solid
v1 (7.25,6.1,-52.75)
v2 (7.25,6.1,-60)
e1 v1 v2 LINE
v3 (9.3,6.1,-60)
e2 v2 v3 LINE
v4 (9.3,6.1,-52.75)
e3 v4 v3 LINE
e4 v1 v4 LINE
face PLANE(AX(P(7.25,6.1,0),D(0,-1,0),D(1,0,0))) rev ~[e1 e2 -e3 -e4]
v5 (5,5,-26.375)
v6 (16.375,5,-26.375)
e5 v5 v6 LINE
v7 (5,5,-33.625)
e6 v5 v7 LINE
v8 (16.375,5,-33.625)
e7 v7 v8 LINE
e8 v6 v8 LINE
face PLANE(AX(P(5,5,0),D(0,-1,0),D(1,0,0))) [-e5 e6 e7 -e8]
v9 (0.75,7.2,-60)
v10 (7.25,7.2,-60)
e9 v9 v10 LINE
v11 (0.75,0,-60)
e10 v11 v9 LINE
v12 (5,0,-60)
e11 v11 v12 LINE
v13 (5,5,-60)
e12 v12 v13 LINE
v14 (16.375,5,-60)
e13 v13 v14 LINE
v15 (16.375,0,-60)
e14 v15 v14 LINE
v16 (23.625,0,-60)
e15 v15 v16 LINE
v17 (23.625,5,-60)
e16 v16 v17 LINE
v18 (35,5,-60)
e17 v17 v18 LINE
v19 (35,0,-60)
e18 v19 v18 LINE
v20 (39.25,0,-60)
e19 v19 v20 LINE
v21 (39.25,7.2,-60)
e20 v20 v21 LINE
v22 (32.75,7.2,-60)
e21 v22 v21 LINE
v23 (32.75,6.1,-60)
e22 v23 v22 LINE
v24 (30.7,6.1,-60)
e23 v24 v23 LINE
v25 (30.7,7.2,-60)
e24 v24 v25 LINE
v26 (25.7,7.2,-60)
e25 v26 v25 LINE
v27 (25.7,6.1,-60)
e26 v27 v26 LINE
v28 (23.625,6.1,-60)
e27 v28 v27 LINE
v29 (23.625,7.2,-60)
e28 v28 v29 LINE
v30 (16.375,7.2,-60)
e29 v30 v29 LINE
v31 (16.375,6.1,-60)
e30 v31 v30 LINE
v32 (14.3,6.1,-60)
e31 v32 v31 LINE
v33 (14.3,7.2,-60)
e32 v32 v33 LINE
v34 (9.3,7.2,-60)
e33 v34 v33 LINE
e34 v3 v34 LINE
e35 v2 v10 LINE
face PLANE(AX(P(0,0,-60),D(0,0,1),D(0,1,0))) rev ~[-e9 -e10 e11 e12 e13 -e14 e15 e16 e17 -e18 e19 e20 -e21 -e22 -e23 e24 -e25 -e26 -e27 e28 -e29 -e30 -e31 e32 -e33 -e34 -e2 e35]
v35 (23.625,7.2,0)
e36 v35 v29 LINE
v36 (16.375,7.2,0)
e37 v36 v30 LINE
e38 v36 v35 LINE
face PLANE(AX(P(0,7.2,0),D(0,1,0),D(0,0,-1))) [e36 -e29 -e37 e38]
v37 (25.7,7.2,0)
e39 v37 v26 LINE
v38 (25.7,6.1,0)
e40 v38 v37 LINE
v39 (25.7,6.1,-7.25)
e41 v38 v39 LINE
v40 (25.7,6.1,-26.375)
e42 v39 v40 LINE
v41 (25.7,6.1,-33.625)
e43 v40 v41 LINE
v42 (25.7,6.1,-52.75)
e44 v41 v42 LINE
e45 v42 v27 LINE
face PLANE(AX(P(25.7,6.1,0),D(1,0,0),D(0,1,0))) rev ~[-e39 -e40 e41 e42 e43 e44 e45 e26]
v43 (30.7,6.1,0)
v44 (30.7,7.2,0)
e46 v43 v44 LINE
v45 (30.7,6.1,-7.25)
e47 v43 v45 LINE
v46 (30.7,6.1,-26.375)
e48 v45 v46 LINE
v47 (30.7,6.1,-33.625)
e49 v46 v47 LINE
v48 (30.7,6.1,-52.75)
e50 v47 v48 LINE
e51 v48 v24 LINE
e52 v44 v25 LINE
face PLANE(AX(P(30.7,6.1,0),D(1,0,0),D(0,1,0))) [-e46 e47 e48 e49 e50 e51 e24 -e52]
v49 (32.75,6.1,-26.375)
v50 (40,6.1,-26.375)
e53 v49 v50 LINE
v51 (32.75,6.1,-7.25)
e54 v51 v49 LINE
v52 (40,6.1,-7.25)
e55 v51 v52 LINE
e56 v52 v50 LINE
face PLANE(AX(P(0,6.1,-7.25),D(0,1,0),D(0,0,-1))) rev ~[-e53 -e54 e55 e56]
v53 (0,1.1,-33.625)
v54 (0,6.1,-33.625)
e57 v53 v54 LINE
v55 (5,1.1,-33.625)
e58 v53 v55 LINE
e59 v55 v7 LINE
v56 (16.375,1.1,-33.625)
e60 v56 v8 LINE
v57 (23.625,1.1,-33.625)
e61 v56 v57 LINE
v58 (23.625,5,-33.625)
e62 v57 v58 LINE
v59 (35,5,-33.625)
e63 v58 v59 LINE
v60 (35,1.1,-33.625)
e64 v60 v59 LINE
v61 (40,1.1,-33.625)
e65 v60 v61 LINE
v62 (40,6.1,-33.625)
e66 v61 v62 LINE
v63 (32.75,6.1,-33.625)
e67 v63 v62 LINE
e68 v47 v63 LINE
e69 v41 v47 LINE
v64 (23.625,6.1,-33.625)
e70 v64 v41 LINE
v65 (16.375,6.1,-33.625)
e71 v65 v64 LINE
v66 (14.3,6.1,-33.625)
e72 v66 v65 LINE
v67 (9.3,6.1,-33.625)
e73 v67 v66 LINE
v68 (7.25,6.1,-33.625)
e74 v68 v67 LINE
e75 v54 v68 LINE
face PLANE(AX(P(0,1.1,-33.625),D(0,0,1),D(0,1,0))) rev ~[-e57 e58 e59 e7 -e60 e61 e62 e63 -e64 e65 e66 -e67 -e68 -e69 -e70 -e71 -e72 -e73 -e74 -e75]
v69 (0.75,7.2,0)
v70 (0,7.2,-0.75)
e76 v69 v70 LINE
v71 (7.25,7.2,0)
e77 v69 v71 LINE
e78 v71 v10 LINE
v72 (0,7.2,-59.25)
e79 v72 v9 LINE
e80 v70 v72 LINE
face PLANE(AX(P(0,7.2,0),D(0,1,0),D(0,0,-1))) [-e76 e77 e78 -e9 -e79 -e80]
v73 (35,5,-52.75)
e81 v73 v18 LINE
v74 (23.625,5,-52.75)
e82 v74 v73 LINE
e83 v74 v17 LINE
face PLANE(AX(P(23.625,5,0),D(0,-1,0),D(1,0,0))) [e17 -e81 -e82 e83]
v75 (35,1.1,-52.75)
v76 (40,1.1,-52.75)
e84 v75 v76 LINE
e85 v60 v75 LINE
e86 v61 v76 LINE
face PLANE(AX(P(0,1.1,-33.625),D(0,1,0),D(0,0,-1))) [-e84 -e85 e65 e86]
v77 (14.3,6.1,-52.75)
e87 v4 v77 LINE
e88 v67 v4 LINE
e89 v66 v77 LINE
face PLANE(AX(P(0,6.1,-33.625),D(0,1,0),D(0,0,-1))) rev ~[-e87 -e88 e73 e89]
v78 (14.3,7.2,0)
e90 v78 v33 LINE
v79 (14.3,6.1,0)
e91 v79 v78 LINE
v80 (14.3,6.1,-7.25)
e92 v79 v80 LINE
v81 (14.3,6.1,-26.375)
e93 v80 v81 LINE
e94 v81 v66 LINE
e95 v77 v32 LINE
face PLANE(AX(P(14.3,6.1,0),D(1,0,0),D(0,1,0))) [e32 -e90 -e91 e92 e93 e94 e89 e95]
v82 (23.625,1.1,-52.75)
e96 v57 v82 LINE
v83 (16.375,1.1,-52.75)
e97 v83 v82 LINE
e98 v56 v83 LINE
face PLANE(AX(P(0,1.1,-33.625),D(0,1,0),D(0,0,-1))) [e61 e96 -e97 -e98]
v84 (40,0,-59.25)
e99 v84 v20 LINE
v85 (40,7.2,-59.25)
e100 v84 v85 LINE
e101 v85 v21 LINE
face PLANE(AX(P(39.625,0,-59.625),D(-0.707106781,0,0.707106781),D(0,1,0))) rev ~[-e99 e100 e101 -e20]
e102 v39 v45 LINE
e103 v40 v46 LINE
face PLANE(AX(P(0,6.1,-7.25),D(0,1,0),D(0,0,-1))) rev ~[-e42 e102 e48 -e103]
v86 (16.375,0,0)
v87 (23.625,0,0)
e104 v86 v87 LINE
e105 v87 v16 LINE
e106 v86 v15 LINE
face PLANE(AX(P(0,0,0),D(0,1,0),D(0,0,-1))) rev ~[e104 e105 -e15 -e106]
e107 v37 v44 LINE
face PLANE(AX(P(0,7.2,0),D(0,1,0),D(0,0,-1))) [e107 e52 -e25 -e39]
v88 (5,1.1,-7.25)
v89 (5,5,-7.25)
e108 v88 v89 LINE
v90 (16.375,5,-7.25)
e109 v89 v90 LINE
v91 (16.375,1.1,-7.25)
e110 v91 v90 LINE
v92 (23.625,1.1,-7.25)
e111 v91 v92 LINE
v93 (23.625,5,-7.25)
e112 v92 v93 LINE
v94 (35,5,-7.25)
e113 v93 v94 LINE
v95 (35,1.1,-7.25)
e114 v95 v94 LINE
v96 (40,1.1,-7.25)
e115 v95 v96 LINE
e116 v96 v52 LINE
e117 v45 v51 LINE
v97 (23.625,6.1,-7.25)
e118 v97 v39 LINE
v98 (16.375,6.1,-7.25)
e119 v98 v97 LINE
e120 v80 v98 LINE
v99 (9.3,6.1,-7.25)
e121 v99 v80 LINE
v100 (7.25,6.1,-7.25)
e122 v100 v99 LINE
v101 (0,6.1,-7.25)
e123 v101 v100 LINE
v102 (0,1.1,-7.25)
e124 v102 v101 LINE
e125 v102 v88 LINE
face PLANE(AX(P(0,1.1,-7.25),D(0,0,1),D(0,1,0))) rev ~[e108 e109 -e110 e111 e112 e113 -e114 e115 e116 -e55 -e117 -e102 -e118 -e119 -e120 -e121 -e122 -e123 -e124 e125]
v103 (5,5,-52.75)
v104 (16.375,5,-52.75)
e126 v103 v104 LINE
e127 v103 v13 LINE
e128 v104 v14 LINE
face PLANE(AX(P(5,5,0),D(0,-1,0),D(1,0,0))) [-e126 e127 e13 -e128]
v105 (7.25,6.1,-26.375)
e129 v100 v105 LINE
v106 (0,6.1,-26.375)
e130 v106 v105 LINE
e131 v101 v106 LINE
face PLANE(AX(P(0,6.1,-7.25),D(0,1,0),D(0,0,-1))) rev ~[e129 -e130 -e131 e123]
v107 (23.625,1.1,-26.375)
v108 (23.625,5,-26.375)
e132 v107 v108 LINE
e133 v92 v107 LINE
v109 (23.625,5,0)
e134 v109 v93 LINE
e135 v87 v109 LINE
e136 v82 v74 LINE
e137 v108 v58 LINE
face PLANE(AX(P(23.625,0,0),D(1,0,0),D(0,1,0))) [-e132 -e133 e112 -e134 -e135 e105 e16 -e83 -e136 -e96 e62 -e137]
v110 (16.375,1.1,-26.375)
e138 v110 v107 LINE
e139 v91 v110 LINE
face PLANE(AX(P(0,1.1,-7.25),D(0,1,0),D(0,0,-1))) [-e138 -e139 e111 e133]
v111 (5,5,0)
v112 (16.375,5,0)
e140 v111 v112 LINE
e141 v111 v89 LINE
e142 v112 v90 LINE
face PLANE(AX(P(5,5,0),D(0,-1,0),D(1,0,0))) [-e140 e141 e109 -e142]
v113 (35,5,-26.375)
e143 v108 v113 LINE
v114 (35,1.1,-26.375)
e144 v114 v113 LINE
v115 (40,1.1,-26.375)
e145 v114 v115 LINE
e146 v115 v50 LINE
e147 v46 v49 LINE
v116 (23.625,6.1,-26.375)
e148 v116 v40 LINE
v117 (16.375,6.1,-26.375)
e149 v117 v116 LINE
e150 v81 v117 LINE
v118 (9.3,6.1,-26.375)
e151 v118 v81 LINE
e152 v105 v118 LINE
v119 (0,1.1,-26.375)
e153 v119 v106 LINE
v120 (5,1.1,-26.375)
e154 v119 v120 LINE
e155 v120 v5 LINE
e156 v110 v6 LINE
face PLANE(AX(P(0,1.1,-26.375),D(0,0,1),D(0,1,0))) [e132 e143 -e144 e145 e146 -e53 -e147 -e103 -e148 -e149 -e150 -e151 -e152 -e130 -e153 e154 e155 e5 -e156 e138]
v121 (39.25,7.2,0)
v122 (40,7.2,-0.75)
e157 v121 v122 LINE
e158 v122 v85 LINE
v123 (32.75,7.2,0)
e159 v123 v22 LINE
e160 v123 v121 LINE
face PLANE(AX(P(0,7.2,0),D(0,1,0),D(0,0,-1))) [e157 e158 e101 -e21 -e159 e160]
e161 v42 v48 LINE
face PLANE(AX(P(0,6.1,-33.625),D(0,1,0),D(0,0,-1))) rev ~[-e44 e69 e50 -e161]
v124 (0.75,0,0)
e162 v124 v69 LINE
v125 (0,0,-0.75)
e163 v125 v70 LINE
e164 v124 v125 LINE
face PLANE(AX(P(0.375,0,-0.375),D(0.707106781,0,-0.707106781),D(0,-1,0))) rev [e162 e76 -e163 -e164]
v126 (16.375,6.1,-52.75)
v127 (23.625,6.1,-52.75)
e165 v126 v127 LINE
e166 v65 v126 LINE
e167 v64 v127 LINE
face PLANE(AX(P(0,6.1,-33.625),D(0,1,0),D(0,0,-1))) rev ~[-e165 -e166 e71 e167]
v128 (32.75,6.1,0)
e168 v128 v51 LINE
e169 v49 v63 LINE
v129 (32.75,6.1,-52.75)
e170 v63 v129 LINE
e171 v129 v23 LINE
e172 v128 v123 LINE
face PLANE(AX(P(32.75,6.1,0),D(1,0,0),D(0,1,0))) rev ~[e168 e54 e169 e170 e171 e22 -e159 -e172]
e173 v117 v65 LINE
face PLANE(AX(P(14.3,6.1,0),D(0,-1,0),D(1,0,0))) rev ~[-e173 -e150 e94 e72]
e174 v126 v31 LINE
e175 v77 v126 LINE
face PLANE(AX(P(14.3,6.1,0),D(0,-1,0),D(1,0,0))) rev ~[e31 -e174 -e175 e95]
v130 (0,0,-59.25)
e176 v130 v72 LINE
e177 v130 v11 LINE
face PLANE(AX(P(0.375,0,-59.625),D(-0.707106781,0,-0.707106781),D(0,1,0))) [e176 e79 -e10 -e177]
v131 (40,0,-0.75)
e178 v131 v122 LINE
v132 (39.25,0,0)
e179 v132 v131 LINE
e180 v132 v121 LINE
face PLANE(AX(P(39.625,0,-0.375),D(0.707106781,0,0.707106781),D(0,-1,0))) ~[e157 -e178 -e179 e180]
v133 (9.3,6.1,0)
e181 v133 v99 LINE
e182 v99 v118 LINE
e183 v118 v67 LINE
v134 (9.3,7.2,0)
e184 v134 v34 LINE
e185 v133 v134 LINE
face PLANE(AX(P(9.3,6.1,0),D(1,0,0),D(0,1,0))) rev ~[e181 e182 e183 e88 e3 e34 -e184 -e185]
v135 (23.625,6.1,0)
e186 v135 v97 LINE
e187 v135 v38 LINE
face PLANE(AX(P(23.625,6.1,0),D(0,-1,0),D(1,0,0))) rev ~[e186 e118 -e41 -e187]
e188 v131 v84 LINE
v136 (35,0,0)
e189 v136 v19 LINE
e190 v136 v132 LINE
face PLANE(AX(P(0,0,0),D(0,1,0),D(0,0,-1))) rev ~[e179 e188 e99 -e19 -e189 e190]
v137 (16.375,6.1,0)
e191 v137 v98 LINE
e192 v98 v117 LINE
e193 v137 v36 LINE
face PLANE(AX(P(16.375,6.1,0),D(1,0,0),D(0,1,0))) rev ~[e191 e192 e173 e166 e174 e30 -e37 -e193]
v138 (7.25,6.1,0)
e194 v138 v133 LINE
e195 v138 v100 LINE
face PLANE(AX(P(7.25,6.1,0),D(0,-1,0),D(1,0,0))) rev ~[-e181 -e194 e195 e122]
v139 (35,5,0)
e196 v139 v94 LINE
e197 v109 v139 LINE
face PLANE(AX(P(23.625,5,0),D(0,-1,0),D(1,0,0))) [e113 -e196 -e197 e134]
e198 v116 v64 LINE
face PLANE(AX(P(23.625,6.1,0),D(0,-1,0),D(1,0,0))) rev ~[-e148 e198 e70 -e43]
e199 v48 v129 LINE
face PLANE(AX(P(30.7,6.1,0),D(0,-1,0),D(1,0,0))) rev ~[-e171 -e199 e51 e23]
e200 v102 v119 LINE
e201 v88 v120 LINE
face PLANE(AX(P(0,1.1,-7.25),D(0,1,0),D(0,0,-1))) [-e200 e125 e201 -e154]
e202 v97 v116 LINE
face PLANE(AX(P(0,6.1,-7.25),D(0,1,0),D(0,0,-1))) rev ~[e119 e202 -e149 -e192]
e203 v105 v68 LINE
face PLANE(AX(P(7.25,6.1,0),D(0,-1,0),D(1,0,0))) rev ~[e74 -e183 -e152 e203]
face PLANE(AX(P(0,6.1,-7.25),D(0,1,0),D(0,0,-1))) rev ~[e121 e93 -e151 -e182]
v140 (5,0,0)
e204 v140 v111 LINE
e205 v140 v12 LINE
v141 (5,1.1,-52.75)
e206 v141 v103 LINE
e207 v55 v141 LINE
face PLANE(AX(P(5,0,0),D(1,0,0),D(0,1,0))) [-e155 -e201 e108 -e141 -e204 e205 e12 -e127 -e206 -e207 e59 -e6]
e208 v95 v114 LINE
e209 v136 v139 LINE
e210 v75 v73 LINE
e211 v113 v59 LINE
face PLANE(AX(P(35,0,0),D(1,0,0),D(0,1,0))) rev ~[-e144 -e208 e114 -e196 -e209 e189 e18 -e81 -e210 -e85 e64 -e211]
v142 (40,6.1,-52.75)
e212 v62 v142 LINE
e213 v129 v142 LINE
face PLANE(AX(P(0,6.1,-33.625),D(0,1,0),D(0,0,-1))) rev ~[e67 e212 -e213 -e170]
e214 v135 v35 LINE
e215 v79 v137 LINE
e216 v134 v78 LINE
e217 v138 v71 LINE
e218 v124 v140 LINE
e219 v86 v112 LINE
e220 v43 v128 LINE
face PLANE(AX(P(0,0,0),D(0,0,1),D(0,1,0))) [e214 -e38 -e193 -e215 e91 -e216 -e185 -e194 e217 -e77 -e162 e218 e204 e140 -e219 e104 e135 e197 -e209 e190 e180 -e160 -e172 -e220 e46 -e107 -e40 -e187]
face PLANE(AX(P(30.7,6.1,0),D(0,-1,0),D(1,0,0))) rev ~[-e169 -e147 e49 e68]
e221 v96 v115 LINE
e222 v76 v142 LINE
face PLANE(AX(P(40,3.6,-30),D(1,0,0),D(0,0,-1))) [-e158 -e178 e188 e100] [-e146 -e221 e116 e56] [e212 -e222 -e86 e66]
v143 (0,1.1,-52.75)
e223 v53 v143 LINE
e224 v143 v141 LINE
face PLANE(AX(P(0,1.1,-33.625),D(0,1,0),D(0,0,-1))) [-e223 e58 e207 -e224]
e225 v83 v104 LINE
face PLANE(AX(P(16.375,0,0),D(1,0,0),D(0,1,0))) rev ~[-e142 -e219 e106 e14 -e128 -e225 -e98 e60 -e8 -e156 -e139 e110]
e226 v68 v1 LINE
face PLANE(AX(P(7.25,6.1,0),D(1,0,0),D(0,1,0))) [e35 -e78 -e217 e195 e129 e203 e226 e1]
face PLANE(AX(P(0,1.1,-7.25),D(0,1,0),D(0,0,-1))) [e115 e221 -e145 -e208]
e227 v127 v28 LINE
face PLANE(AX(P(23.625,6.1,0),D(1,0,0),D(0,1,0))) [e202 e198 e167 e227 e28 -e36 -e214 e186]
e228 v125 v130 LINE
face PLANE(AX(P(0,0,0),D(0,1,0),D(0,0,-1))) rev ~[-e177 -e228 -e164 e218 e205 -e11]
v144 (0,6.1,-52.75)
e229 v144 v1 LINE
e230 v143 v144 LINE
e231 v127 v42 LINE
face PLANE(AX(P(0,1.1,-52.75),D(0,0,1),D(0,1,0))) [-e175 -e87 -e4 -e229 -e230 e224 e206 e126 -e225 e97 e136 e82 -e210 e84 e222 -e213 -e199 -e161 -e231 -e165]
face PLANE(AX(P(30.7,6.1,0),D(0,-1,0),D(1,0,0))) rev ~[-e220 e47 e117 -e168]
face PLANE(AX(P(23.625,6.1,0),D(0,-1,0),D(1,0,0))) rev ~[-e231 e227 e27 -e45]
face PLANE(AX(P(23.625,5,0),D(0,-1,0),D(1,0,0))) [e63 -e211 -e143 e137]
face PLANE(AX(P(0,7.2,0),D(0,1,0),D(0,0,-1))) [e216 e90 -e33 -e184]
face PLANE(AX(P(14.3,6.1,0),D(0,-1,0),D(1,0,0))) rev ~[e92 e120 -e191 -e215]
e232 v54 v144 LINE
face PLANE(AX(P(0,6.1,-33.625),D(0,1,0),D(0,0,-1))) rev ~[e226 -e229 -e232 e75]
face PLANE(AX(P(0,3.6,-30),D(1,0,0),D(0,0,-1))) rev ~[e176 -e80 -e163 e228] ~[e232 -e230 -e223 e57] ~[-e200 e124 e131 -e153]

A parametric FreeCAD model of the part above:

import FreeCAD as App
import Part
import Sketcher
from FreeCAD import Vector


def edges_at(feature, points):
    """Names of the edges that pass closest to the given points."""
    edges = feature.Shape.Edges
    near = lambda p: min(range(len(edges)), key=lambda i: edges[i].distToShape(Part.Vertex(*p))[0])
    return sorted({f"Edge{near(p) + 1}" for p in points})

doc = App.newDocument("Part")
body = doc.addObject("PartDesign::Body", "Body")

# Sketch on YZ plane
sketch1 = body.newObject("Sketcher::SketchObject", "Sketch")
sketch1.AttachmentSupport = (doc.getObject("YZ_Plane"), [""])
sketch1.MapMode = "FlatFace"
sketch1.addGeometry([
    Part.LineSegment(Vector(7.2, 0, 0), Vector(0, 0, 0)),  # 0
    Part.LineSegment(Vector(0, 0, 0), Vector(0, -60, 0)),  # 1
    Part.LineSegment(Vector(0, -60, 0), Vector(7.2, -60, 0)),  # 2
    Part.LineSegment(Vector(7.2, -60, 0), Vector(7.2, 0, 0)),  # 3
    Part.LineSegment(Vector(1.1, -26.375, 0), Vector(1.1, -7.25, 0)),  # 4
    Part.LineSegment(Vector(1.1, -7.25, 0), Vector(6.1, -7.25, 0)),  # 5
    Part.LineSegment(Vector(6.1, -7.25, 0), Vector(6.1, -26.375, 0)),  # 6
    Part.LineSegment(Vector(6.1, -26.375, 0), Vector(1.1, -26.375, 0)),  # 7
    Part.LineSegment(Vector(1.1, -52.75, 0), Vector(1.1, -33.625, 0)),  # 8
    Part.LineSegment(Vector(1.1, -33.625, 0), Vector(6.1, -33.625, 0)),  # 9
    Part.LineSegment(Vector(6.1, -33.625, 0), Vector(6.1, -52.75, 0)),  # 10
    Part.LineSegment(Vector(6.1, -52.75, 0), Vector(1.1, -52.75, 0)),  # 11
], False)
sketch1.addConstraint([
    Sketcher.Constraint("Coincident", 0, 2, 1, 1),
    Sketcher.Constraint("Coincident", 1, 2, 2, 1),
    Sketcher.Constraint("Coincident", 2, 2, 3, 1),
    Sketcher.Constraint("Coincident", 3, 2, 0, 1),
    Sketcher.Constraint("Coincident", 4, 2, 5, 1),
    Sketcher.Constraint("Coincident", 5, 2, 6, 1),
    Sketcher.Constraint("Coincident", 6, 2, 7, 1),
    Sketcher.Constraint("Coincident", 7, 2, 4, 1),
    Sketcher.Constraint("Coincident", 8, 2, 9, 1),
    Sketcher.Constraint("Coincident", 9, 2, 10, 1),
    Sketcher.Constraint("Coincident", 10, 2, 11, 1),
    Sketcher.Constraint("Coincident", 11, 2, 8, 1),
    Sketcher.Constraint("Horizontal", 0),
    Sketcher.Constraint("Vertical", 1),
    Sketcher.Constraint("Horizontal", 2),
    Sketcher.Constraint("Vertical", 3),
    Sketcher.Constraint("Vertical", 4),
    Sketcher.Constraint("Horizontal", 5),
    Sketcher.Constraint("Vertical", 6),
    Sketcher.Constraint("Horizontal", 7),
    Sketcher.Constraint("Vertical", 8),
    Sketcher.Constraint("Horizontal", 9),
    Sketcher.Constraint("Vertical", 10),
    Sketcher.Constraint("Horizontal", 11),
    Sketcher.Constraint("Coincident", 0, 2, -1, 1),
    Sketcher.Constraint("Vertical", 7, 2, 8, 2),
    Sketcher.Constraint("Vertical", 6, 2, 9, 2),
    Sketcher.Constraint("Equal", 6, 8),
    Sketcher.Constraint("DistanceX", 5, 1, 5, 2, 5.0),
    Sketcher.Constraint("DistanceY", 1, 2, 1, 1, 60.0),
    Sketcher.Constraint("DistanceX", 0, 2, 0, 1, 7.2),
    Sketcher.Constraint("DistanceX", -1, 1, 4, 2, 1.1),
    Sketcher.Constraint("DistanceY", 4, 1, 4, 2, 19.125),
    Sketcher.Constraint("DistanceY", 4, 2, -1, 1, 7.25),
    Sketcher.Constraint("DistanceY", 10, 2, -1, 1, 52.75),
])
pad1 = body.newObject("PartDesign::Pad", "Pad")
pad1.Profile = sketch1
pad1.Length = 40

# Sketch on XY plane
sketch2 = body.newObject("Sketcher::SketchObject", "Sketch001")
sketch2.AttachmentSupport = (doc.getObject("XY_Plane"), [""])
sketch2.MapMode = "FlatFace"
sketch2.addGeometry([
    Part.LineSegment(Vector(5, 5, 0), Vector(5, 0, 0)),  # 0
    Part.LineSegment(Vector(5, 0, 0), Vector(16.375, 0, 0)),  # 1
    Part.LineSegment(Vector(16.375, 0, 0), Vector(16.375, 5, 0)),  # 2
    Part.LineSegment(Vector(16.375, 5, 0), Vector(5, 5, 0)),  # 3
    Part.LineSegment(Vector(23.625, 5, 0), Vector(23.625, 0, 0)),  # 4
    Part.LineSegment(Vector(23.625, 0, 0), Vector(35, 0, 0)),  # 5
    Part.LineSegment(Vector(35, 0, 0), Vector(35, 5, 0)),  # 6
    Part.LineSegment(Vector(35, 5, 0), Vector(23.625, 5, 0)),  # 7
    Part.LineSegment(Vector(14.3, 7.2, 0), Vector(14.3, 6.1, 0)),  # 8
    Part.LineSegment(Vector(14.3, 6.1, 0), Vector(16.375, 6.1, 0)),  # 9
    Part.LineSegment(Vector(16.375, 6.1, 0), Vector(16.375, 7.2, 0)),  # 10
    Part.LineSegment(Vector(16.375, 7.2, 0), Vector(14.3, 7.2, 0)),  # 11
    Part.LineSegment(Vector(7.25, 7.2, 0), Vector(7.25, 6.1, 0)),  # 12
    Part.LineSegment(Vector(7.25, 6.1, 0), Vector(9.3, 6.1, 0)),  # 13
    Part.LineSegment(Vector(9.3, 6.1, 0), Vector(9.3, 7.2, 0)),  # 14
    Part.LineSegment(Vector(9.3, 7.2, 0), Vector(7.25, 7.2, 0)),  # 15
    Part.LineSegment(Vector(23.625, 7.2, 0), Vector(23.625, 6.1, 0)),  # 16
    Part.LineSegment(Vector(23.625, 6.1, 0), Vector(25.7, 6.1, 0)),  # 17
    Part.LineSegment(Vector(25.7, 6.1, 0), Vector(25.7, 7.2, 0)),  # 18
    Part.LineSegment(Vector(25.7, 7.2, 0), Vector(23.625, 7.2, 0)),  # 19
    Part.LineSegment(Vector(30.7, 7.2, 0), Vector(30.7, 6.1, 0)),  # 20
    Part.LineSegment(Vector(30.7, 6.1, 0), Vector(32.75, 6.1, 0)),  # 21
    Part.LineSegment(Vector(32.75, 6.1, 0), Vector(32.75, 7.2, 0)),  # 22
    Part.LineSegment(Vector(32.75, 7.2, 0), Vector(30.7, 7.2, 0)),  # 23
], False)
sketch2.addConstraint([
    Sketcher.Constraint("Coincident", 0, 2, 1, 1),
    Sketcher.Constraint("Coincident", 1, 2, 2, 1),
    Sketcher.Constraint("Coincident", 2, 2, 3, 1),
    Sketcher.Constraint("Coincident", 3, 2, 0, 1),
    Sketcher.Constraint("Coincident", 4, 2, 5, 1),
    Sketcher.Constraint("Coincident", 5, 2, 6, 1),
    Sketcher.Constraint("Coincident", 6, 2, 7, 1),
    Sketcher.Constraint("Coincident", 7, 2, 4, 1),
    Sketcher.Constraint("Coincident", 8, 2, 9, 1),
    Sketcher.Constraint("Coincident", 9, 2, 10, 1),
    Sketcher.Constraint("Coincident", 10, 2, 11, 1),
    Sketcher.Constraint("Coincident", 11, 2, 8, 1),
    Sketcher.Constraint("Coincident", 12, 2, 13, 1),
    Sketcher.Constraint("Coincident", 13, 2, 14, 1),
    Sketcher.Constraint("Coincident", 14, 2, 15, 1),
    Sketcher.Constraint("Coincident", 15, 2, 12, 1),
    Sketcher.Constraint("Coincident", 16, 2, 17, 1),
    Sketcher.Constraint("Coincident", 17, 2, 18, 1),
    Sketcher.Constraint("Coincident", 18, 2, 19, 1),
    Sketcher.Constraint("Coincident", 19, 2, 16, 1),
    Sketcher.Constraint("Coincident", 20, 2, 21, 1),
    Sketcher.Constraint("Coincident", 21, 2, 22, 1),
    Sketcher.Constraint("Coincident", 22, 2, 23, 1),
    Sketcher.Constraint("Coincident", 23, 2, 20, 1),
    Sketcher.Constraint("Vertical", 0),
    Sketcher.Constraint("Horizontal", 1),
    Sketcher.Constraint("Vertical", 2),
    Sketcher.Constraint("Horizontal", 3),
    Sketcher.Constraint("Vertical", 4),
    Sketcher.Constraint("Horizontal", 5),
    Sketcher.Constraint("Vertical", 6),
    Sketcher.Constraint("Horizontal", 7),
    Sketcher.Constraint("Vertical", 8),
    Sketcher.Constraint("Horizontal", 9),
    Sketcher.Constraint("Vertical", 10),
    Sketcher.Constraint("Horizontal", 11),
    Sketcher.Constraint("Vertical", 12),
    Sketcher.Constraint("Horizontal", 13),
    Sketcher.Constraint("Vertical", 14),
    Sketcher.Constraint("Horizontal", 15),
    Sketcher.Constraint("Vertical", 16),
    Sketcher.Constraint("Horizontal", 17),
    Sketcher.Constraint("Vertical", 18),
    Sketcher.Constraint("Horizontal", 19),
    Sketcher.Constraint("Vertical", 20),
    Sketcher.Constraint("Horizontal", 21),
    Sketcher.Constraint("Vertical", 22),
    Sketcher.Constraint("Horizontal", 23),
    Sketcher.Constraint("PointOnObject", 0, 2, -1),
    Sketcher.Constraint("PointOnObject", 4, 2, -1),
    Sketcher.Constraint("Horizontal", 3, 2, 6, 2),
    Sketcher.Constraint("Horizontal", 9, 2, 12, 2),
    Sketcher.Constraint("Horizontal", 11, 2, 14, 2),
    Sketcher.Constraint("Horizontal", 13, 2, 16, 2),
    Sketcher.Constraint("Horizontal", 15, 2, 18, 2),
    Sketcher.Constraint("Horizontal", 17, 2, 20, 2),
    Sketcher.Constraint("Horizontal", 19, 2, 22, 2),
    Sketcher.Constraint("Vertical", 2, 2, 9, 2),
    Sketcher.Constraint("Vertical", 7, 2, 16, 2),
    Sketcher.Constraint("Equal", 3, 5),
    Sketcher.Constraint("Equal", 11, 17),
    Sketcher.Constraint("Equal", 15, 21),
    Sketcher.Constraint("DistanceY", 0, 2, 0, 1, 5.0),
    Sketcher.Constraint("DistanceY", 8, 2, 8, 1, 1.1),
    Sketcher.Constraint("DistanceX", -1, 1, 0, 2, 5.0),
    Sketcher.Constraint("DistanceX", -1, 1, 5, 2, 35.0),
    Sketcher.Constraint("DistanceX", 13, 2, 8, 2, 5.0),
    Sketcher.Constraint("DistanceX", 17, 2, 20, 2, 5.0),
    Sketcher.Constraint("DistanceX", 13, 1, 13, 2, 2.05),
    Sketcher.Constraint("DistanceX", -1, 1, 8, 2, 14.3),
    Sketcher.Constraint("DistanceY", -1, 1, 8, 2, 6.1),
    Sketcher.Constraint("DistanceX", 1, 1, 1, 2, 11.375),
])
pocket1 = body.newObject("PartDesign::Pocket", "Pocket")
pocket1.Profile = sketch2
pocket1.Type = "ThroughAll"
doc.recompute()

chamfer = body.newObject("PartDesign::Chamfer", "Chamfer")
chamfer.Base = (pocket1, edges_at(pocket1, [
    (40, 3.6, 0),
    (0, 3.6, 0),
    (0, 3.6, -60),
    (40, 3.6, -60),
]))
chamfer.Size = 0.75

doc.recompute()
